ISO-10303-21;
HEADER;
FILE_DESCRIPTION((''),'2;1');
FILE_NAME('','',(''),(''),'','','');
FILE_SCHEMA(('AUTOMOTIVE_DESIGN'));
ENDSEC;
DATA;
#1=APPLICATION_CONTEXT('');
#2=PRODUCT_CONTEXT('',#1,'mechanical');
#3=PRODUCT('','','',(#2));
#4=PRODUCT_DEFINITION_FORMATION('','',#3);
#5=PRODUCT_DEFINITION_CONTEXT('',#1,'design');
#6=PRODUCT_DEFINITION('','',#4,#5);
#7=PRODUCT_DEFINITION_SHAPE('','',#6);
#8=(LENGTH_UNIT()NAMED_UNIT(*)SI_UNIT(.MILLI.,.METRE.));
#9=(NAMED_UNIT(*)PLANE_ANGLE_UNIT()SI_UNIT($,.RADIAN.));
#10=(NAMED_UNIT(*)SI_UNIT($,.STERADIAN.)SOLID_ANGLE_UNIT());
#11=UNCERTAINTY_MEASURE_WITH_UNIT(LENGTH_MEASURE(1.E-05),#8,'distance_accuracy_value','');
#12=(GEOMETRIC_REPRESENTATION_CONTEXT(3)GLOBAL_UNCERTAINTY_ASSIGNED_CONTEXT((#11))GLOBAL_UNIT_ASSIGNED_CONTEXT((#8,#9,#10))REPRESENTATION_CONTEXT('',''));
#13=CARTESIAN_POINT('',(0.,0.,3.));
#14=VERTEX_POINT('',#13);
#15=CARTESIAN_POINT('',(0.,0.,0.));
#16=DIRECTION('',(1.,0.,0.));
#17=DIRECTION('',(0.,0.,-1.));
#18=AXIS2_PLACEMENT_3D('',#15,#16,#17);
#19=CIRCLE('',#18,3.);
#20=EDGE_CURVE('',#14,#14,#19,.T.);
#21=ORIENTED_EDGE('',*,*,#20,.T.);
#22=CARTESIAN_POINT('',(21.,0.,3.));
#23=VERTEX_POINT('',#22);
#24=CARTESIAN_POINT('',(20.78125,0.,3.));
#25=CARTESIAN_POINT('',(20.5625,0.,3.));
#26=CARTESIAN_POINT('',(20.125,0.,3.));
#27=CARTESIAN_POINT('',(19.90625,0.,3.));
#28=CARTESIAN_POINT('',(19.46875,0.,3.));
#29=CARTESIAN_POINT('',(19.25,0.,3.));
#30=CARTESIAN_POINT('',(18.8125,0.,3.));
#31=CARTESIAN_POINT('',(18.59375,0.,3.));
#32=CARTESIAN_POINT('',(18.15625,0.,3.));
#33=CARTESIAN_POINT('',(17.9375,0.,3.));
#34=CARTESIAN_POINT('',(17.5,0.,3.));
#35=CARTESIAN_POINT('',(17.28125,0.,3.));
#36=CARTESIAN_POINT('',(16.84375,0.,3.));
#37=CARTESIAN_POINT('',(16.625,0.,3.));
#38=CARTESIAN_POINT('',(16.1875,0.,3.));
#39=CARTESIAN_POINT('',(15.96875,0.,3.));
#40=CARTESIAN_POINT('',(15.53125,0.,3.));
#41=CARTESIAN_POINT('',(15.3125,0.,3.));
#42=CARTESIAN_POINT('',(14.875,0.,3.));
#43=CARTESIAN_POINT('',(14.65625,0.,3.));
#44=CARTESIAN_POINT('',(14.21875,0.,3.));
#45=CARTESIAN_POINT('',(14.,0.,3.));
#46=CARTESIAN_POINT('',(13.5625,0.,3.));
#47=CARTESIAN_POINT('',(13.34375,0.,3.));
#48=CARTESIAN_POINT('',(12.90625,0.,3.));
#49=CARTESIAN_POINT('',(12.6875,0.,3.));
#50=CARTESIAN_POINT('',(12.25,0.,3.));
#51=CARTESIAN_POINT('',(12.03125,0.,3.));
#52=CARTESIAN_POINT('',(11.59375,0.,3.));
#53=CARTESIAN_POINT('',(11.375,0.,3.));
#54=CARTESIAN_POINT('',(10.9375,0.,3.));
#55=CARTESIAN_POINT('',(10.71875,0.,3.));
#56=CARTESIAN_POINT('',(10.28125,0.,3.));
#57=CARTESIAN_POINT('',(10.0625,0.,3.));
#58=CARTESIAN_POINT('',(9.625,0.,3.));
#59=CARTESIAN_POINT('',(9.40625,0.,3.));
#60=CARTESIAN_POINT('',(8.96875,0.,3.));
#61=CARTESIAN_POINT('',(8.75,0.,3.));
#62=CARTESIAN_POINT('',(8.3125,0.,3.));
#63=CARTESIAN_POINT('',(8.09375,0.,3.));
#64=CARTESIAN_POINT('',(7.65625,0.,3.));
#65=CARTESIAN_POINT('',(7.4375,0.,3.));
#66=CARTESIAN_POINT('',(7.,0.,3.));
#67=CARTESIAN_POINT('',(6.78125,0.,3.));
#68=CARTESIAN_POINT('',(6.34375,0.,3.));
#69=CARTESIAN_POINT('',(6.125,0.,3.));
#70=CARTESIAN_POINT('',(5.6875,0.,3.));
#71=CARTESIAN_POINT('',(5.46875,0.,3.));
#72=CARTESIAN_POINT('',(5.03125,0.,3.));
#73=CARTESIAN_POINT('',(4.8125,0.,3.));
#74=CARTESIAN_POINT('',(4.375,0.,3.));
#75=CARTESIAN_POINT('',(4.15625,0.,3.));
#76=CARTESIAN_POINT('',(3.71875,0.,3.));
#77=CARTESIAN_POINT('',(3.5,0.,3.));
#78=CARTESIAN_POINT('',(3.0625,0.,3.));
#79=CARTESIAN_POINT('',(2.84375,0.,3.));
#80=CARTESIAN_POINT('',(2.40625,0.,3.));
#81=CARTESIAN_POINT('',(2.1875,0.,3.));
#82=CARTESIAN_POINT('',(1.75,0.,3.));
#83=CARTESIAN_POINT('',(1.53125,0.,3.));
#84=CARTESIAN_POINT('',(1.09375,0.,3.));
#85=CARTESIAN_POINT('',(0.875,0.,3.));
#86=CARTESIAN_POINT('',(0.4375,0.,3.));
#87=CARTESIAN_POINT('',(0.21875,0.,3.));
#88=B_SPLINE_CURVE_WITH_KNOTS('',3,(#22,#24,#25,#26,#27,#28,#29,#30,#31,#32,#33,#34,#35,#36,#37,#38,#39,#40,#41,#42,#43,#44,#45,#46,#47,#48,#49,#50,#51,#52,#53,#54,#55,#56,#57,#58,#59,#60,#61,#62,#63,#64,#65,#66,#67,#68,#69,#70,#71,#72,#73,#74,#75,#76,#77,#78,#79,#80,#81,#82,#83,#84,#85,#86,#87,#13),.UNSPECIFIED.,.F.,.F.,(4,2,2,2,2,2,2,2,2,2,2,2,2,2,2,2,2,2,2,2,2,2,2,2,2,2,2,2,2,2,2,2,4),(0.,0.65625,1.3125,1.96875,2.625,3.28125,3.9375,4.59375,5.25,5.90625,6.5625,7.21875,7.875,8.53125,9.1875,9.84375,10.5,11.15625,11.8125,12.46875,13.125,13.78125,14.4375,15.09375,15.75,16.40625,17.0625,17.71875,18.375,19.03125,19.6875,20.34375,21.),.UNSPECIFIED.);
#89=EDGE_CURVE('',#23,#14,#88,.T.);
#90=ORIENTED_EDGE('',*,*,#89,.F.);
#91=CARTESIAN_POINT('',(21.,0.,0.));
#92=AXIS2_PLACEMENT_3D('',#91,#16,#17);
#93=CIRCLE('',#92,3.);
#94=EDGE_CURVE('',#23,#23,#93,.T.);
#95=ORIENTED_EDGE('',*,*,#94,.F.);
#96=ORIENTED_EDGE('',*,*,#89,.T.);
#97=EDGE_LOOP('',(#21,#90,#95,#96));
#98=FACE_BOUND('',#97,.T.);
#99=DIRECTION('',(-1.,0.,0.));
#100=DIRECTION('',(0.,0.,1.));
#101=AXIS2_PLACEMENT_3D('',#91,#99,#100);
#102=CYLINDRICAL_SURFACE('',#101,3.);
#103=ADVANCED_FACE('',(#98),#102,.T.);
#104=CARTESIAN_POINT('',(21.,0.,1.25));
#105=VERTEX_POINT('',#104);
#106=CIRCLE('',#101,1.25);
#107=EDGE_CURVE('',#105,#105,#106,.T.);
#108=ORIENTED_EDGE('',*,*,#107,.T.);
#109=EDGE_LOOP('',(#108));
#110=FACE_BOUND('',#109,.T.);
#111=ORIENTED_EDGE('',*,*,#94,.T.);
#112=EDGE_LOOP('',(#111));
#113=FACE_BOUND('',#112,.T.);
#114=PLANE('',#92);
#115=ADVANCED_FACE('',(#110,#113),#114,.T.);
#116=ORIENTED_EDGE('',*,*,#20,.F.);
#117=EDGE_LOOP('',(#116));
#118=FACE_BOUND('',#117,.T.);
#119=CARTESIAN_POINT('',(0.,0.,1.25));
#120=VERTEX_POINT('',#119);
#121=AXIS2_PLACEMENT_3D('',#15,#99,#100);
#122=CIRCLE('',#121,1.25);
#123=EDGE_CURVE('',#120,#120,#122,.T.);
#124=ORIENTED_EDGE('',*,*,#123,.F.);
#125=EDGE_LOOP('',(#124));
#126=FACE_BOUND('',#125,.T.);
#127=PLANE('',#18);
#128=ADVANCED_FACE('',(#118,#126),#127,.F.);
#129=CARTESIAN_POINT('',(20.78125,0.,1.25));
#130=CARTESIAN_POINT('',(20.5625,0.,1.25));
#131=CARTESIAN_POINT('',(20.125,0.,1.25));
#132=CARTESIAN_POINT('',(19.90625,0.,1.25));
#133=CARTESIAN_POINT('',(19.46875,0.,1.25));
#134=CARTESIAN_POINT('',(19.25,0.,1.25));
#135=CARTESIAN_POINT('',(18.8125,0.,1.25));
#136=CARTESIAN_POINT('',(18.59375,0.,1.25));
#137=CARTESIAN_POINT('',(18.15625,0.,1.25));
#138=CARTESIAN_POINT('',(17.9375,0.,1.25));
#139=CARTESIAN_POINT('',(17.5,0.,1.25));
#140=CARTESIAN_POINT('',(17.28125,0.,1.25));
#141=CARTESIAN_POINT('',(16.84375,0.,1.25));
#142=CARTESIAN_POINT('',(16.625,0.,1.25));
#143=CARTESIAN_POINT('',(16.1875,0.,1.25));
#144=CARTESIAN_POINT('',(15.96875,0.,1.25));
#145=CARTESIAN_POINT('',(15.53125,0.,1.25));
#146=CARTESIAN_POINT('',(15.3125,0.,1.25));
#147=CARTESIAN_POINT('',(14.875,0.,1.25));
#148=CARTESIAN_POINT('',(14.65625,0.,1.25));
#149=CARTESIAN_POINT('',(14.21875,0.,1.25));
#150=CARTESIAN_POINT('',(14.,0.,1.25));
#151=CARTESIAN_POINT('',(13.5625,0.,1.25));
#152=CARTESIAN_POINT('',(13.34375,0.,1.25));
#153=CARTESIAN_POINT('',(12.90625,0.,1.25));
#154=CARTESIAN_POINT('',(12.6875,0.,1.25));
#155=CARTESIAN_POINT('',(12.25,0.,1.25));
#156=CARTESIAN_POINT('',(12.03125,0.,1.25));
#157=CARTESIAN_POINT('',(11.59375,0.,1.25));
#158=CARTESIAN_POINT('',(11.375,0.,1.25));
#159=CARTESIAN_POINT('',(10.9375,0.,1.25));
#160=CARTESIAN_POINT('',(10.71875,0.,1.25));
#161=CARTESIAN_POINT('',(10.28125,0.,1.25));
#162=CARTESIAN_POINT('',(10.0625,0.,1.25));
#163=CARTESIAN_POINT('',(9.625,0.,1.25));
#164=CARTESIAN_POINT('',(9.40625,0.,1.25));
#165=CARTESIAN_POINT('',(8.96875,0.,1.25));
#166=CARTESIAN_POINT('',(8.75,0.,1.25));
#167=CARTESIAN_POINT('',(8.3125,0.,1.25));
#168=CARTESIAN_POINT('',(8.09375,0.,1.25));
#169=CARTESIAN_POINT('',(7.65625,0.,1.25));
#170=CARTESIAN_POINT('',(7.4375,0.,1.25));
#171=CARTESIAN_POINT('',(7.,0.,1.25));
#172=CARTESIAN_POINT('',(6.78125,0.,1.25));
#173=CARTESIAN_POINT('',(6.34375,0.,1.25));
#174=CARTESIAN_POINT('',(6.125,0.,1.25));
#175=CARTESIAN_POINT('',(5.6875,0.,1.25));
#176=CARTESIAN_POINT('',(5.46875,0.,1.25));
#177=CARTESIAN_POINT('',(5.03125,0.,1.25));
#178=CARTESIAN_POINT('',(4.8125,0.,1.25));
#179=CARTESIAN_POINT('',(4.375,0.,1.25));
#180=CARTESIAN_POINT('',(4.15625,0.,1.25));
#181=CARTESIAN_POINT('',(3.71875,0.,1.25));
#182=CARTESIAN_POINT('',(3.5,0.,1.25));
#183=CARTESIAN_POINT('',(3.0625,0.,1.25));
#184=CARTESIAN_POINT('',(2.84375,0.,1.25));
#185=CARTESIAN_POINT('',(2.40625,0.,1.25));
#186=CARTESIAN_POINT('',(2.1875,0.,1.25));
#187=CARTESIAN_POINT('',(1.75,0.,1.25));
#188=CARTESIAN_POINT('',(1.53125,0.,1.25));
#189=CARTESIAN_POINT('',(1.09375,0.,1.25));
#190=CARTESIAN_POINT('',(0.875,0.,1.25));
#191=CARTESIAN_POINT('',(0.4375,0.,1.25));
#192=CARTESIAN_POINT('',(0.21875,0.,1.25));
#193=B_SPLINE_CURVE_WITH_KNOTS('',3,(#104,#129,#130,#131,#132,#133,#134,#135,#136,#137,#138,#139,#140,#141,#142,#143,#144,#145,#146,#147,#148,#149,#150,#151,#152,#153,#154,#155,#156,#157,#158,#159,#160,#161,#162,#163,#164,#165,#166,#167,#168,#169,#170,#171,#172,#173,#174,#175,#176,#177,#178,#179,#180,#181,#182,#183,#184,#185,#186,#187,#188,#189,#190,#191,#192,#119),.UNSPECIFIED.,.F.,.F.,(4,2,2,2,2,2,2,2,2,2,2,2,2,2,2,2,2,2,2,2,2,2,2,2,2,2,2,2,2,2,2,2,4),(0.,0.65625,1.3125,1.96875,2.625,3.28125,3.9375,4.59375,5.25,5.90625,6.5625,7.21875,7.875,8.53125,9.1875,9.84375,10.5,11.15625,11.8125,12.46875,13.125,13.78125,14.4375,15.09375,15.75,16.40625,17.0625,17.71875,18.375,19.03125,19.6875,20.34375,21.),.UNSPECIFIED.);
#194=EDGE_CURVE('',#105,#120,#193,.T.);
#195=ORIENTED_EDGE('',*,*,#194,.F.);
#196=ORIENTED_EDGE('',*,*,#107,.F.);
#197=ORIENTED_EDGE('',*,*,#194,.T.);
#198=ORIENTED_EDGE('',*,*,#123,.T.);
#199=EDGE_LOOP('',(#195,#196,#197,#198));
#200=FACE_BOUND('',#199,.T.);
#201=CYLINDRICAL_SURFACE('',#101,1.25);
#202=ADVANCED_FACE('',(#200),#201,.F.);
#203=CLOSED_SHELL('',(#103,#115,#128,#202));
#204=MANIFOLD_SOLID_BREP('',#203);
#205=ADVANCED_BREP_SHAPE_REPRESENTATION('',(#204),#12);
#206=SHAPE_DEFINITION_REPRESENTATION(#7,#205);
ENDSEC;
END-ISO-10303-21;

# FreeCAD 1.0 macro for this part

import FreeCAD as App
import Part
import Sketcher

doc = App.newDocument("Part")
params = doc.addObject("Spreadsheet::Sheet", "Params")
for row, (alias, value) in enumerate([
    ("sketch1_diameter", "6 mm"),
    ("pad1_length", "21 mm"),
    ("sketch2_diameter", "2.5 mm"),
    ("pocket1_length", "21 mm"),
], start=1):
    params.set(f"A{row}", alias)
    params.set(f"B{row}", "=" + value)
    params.setAlias(f"B{row}", alias)

body = doc.addObject("PartDesign::Body", "Body")

# Sketch on YZ plane
sketch1 = body.newObject("Sketcher::SketchObject", "Sketch")
sketch1.AttachmentSupport = (doc.getObject("YZ_Plane"), [""])
sketch1.MapMode = "FlatFace"
sketch1.addGeometry(Part.Circle(App.Vector(0, 0, 0), App.Vector(0, 0, 1), 3), False)
sketch1.addConstraint(Sketcher.Constraint("Coincident", 0, 3, -1, 1))
sketch1.addConstraint(Sketcher.Constraint("Diameter", 0, 6.0))
sketch1.setExpression("Constraints[1]", "Params.sketch1_diameter")
pad1 = body.newObject("PartDesign::Pad", "Pad")
pad1.Profile = sketch1
pad1.setExpression("Length", "Params.pad1_length")

# Sketch on YZ plane
sketch2 = body.newObject("Sketcher::SketchObject", "Sketch001")
sketch2.AttachmentSupport = (doc.getObject("YZ_Plane"), [""])
sketch2.MapMode = "FlatFace"
sketch2.addGeometry(Part.Circle(App.Vector(0, 0, 0), App.Vector(0, 0, 1), 1.2), False)
sketch2.addConstraint(Sketcher.Constraint("Coincident", 0, 3, -1, 1))
sketch2.addConstraint(Sketcher.Constraint("Diameter", 0, 2.5))
sketch2.setExpression("Constraints[1]", "Params.sketch2_diameter")
pocket1 = body.newObject("PartDesign::Pocket", "Pocket")
pocket1.Profile = sketch2
pocket1.setExpression("Length", "Params.pocket1_length")
pocket1.Reversed = True

doc.recompute()
